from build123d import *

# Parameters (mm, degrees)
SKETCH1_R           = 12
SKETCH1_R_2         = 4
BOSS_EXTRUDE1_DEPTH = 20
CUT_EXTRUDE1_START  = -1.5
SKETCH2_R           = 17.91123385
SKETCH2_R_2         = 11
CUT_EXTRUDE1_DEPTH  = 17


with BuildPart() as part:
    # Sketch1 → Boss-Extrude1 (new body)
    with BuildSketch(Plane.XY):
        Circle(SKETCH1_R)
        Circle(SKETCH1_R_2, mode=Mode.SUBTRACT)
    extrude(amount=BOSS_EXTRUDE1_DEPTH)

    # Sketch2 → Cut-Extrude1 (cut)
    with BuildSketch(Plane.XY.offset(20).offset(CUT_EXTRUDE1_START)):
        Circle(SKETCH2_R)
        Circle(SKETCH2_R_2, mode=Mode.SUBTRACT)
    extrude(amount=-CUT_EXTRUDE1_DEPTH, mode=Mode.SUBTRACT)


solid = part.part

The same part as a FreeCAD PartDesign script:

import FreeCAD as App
import Part
import Sketcher

V = App.Vector

doc = App.newDocument("Part")
params = doc.addObject("Spreadsheet::Sheet", "Params")
for row, (alias, value) in enumerate([
    ("sketch1_diameter", "24 mm"),
    ("sketch1_diameter2", "8 mm"),
    ("pad1_length", "20 mm"),
    ("sketch2_diameter", "22 mm"),
    ("pocket1_length", "17 mm"),
], start=1):
    params.set(f"A{row}", alias)
    params.set(f"B{row}", "=" + value)
    params.setAlias(f"B{row}", alias)

body = doc.addObject("PartDesign::Body", "Body")

sketch1 = body.newObject("Sketcher::SketchObject", "Sketch")
sketch1.AttachmentSupport = (doc.getObject("XY_Plane"), [""])
sketch1.MapMode = "FlatFace"
sketch1.addGeometry([
    Part.Circle(V(0, 0, 0), V(0, 0, 1), 12),
    Part.Circle(V(0, 0, 0), V(0, 0, 1), 4),
], False)
sketch1.addConstraint([
    Sketcher.Constraint("Coincident", 0, 3, -1, 1),
    Sketcher.Constraint("Coincident", 1, 3, -1, 1),
    Sketcher.Constraint("Diameter", 0, 24.0),
    Sketcher.Constraint("Diameter", 1, 8.0),
])
sketch1.setExpression("Constraints[2]", "Params.sketch1_diameter")
sketch1.setExpression("Constraints[3]", "Params.sketch1_diameter2")
pad1 = body.newObject("PartDesign::Pad", "Pad")
pad1.Profile = sketch1
pad1.setExpression("Length", "Params.pad1_length")

sketch2 = body.newObject("Sketcher::SketchObject", "Sketch001")
sketch2.AttachmentSupport = (doc.getObject("XY_Plane"), [""])
sketch2.MapMode = "FlatFace"
sketch2.AttachmentOffset = App.Placement(V(0, 0, 18.5), App.Rotation())
sketch2.addGeometry([
    Part.Circle(V(0, 0, 0), V(0, 0, 1), 18),
    Part.Circle(V(0, 0, 0), V(0, 0, 1), 11),
], False)
sketch2.addConstraint([
    Sketcher.Constraint("Coincident", 0, 3, -1, 1),
    Sketcher.Constraint("Coincident", 1, 3, -1, 1),
    Sketcher.Constraint("Diameter", 1, 22.0),
    Sketcher.Constraint("Diameter", 0, 35.822468),
])
sketch2.setExpression("Constraints[2]", "Params.sketch2_diameter")
pocket1 = body.newObject("PartDesign::Pocket", "Pocket")
pocket1.Profile = sketch2
pocket1.setExpression("Length", "Params.pocket1_length")

doc.recompute()
